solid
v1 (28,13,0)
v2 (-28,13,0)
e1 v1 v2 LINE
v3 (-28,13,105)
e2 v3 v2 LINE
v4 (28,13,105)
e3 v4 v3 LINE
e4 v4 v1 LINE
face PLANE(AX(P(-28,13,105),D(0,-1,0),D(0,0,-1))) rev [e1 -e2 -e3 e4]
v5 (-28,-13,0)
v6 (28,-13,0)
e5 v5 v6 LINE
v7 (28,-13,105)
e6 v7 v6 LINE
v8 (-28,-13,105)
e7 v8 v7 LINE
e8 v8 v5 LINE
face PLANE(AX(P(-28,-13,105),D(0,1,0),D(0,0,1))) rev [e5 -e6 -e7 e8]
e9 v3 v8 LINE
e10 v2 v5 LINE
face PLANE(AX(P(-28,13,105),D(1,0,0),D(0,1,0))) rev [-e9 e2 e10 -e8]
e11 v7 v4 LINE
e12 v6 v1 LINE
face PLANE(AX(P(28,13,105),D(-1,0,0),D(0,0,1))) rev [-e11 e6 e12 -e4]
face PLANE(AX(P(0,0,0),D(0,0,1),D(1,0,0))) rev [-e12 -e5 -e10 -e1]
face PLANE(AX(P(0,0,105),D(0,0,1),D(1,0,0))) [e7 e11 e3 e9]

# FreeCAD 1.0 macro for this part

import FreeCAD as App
import Part
import Sketcher
Q = App.Units.Quantity

doc = App.newDocument("Part")
params = doc.addObject("Spreadsheet::Sheet", "Params")
for row, (alias, value) in enumerate([
    ("sketch1_width", "56 mm"),
    ("sketch1_height", "26 mm"),
    ("pad1_length", "105 mm"),
], start=1):
    params.set(f"A{row}", alias)
    params.set(f"B{row}", "=" + value)
    params.setAlias(f"B{row}", alias)

body = doc.addObject("PartDesign::Body", "Body")

# Sketch on XY plane
sketch1 = body.newObject("Sketcher::SketchObject", "Sketch")
sketch1.AttachmentSupport = (doc.getObject("XY_Plane"), [""])
sketch1.MapMode = "FlatFace"
sketch1.addGeometry([
    Part.LineSegment(App.Vector(-28, 13, 0), App.Vector(-28, -13, 0)),
    Part.LineSegment(App.Vector(-28, -13, 0), App.Vector(28, -13, 0)),
    Part.LineSegment(App.Vector(28, -13, 0), App.Vector(28, 13, 0)),
    Part.LineSegment(App.Vector(28, 13, 0), App.Vector(-28, 13, 0)),
], False)
sketch1.addConstraint([
    Sketcher.Constraint("Coincident", 0, 2, 1, 1),
    Sketcher.Constraint("Coincident", 1, 2, 2, 1),
    Sketcher.Constraint("Coincident", 2, 2, 3, 1),
    Sketcher.Constraint("Coincident", 3, 2, 0, 1),
    Sketcher.Constraint("Vertical", 0),
    Sketcher.Constraint("Horizontal", 1),
    Sketcher.Constraint("Vertical", 2),
    Sketcher.Constraint("Horizontal", 3),
    Sketcher.Constraint("Symmetric", 0, 2, 2, 2, -1, 1),
    Sketcher.Constraint("DistanceX", 1, 1, 1, 2, Q("56 mm")),
    Sketcher.Constraint("DistanceY", 0, 2, 0, 1, Q("26 mm")),
])
sketch1.setExpression("Constraints[9]", "Params.sketch1_width")
sketch1.setExpression("Constraints[10]", "Params.sketch1_height")
pad1 = body.newObject("PartDesign::Pad", "Pad")
pad1.Profile = sketch1
pad1.setExpression("Length", "Params.pad1_length")

doc.recompute()
